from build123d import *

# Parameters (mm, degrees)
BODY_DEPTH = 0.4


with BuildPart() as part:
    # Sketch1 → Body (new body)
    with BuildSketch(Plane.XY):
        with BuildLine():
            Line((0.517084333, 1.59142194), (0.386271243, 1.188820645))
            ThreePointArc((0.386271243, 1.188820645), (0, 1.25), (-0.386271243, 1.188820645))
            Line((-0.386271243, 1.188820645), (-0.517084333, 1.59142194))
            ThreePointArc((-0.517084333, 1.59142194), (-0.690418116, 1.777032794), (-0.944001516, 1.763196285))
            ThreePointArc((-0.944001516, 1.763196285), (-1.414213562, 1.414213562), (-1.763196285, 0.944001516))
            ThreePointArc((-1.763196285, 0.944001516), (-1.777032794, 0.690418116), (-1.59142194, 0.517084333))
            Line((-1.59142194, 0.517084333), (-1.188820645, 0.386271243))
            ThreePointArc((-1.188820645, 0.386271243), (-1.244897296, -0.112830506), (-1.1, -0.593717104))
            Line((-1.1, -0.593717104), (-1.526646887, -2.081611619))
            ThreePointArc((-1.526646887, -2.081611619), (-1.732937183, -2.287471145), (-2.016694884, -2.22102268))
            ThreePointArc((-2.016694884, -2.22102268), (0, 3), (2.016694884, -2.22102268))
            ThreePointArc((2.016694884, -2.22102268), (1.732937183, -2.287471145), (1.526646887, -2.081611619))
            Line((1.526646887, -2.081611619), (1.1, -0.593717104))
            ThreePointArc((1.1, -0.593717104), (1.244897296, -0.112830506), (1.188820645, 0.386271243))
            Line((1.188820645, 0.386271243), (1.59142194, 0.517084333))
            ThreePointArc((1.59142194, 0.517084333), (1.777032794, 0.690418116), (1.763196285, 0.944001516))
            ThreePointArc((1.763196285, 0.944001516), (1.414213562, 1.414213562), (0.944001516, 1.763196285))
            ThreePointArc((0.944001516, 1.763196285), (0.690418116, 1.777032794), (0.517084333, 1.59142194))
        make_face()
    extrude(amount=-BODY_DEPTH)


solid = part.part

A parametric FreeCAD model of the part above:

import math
import FreeCAD as App
import Part
import Sketcher
from FreeCAD import Vector
Q = App.Units.Quantity

doc = App.newDocument("Part")
body = doc.addObject("PartDesign::Body", "Body")

# Sketch on XY plane
sketch1 = body.newObject("Sketcher::SketchObject", "Sketch")
sketch1.AttachmentSupport = (doc.getObject("XY_Plane"), [""])
sketch1.MapMode = "FlatFace"
sketch1.addGeometry(Part.LineSegment(Vector(0.386271, 1.188821, 0), Vector(0.517084, 1.591422, 0)), False)
sketch1.addGeometry(Part.ArcOfCircle(Part.Circle(Vector(0.802401, 1.498717, 0), Vector(0, 0, 1), 0.3), math.radians(61.835752), math.radians(162)), False)
sketch1.addGeometry(Part.ArcOfCircle(Part.Circle(Vector(0, 0, 0), Vector(0, 0, 1), 2), math.radians(28.164249), math.radians(61.835751)), False)
sketch1.addGeometry(Part.ArcOfCircle(Part.Circle(Vector(1.498717, 0.802401, 0), Vector(0, 0, 1), 0.3), math.radians(-72), math.radians(28.164248)), False)
sketch1.addGeometry(Part.LineSegment(Vector(1.591422, 0.517084, 0), Vector(1.188821, 0.386271, 0)), False)
sketch1.addGeometry(Part.ArcOfCircle(Part.Circle(Vector(0, 0, 0), Vector(0, 0, 1), 1.25), math.radians(-28.357637), math.radians(18)), False)
sketch1.addGeometry(Part.LineSegment(Vector(1.1, -0.593717, 0), Vector(1.526647, -2.081612, 0)), False)
sketch1.addGeometry(Part.ArcOfCircle(Part.Circle(Vector(1.815025, -1.99892, 0), Vector(0, 0, 1), 0.3), math.radians(-164), math.radians(-47.760462)), False)
sketch1.addGeometry(Part.ArcOfCircle(Part.Circle(Vector(0, 0, 0), Vector(0, 0, 1), 3), math.radians(-47.760463), math.radians(227.760463)), False)
sketch1.addGeometry(Part.ArcOfCircle(Part.Circle(Vector(-1.815025, -1.99892, 0), Vector(0, 0, 1), 0.3), math.radians(-132.239538), math.radians(-16)), False)
sketch1.addGeometry(Part.LineSegment(Vector(-1.526647, -2.081612, 0), Vector(-1.1, -0.593717, 0)), False)
sketch1.addGeometry(Part.ArcOfCircle(Part.Circle(Vector(0, 0, 0), Vector(0, 0, 1), 1.25), math.radians(162), math.radians(208.357637)), False)
sketch1.addGeometry(Part.LineSegment(Vector(-1.188821, 0.386271, 0), Vector(-1.591422, 0.517084, 0)), False)
sketch1.addGeometry(Part.ArcOfCircle(Part.Circle(Vector(-1.498717, 0.802401, 0), Vector(0, 0, 1), 0.3), math.radians(151.835752), math.radians(252)), False)
sketch1.addGeometry(Part.ArcOfCircle(Part.Circle(Vector(0, 0, 0), Vector(0, 0, 1), 2), math.radians(118.164249), math.radians(151.835751)), False)
sketch1.addGeometry(Part.ArcOfCircle(Part.Circle(Vector(-0.802401, 1.498717, 0), Vector(0, 0, 1), 0.3), math.radians(18), math.radians(118.164248)), False)
sketch1.addGeometry(Part.LineSegment(Vector(-0.517084, 1.591422, 0), Vector(-0.386271, 1.188821, 0)), False)
sketch1.addGeometry(Part.ArcOfCircle(Part.Circle(Vector(0, 0, 0), Vector(0, 0, 1), 1.25), math.radians(72), math.radians(108)), False)
sketch1.addConstraint(Sketcher.Constraint("Tangent", 0, 2, 1, 2))
sketch1.addConstraint(Sketcher.Constraint("Tangent", 1, 1, 2, 2))
sketch1.addConstraint(Sketcher.Constraint("Tangent", 2, 1, 3, 2))
sketch1.addConstraint(Sketcher.Constraint("Tangent", 3, 1, 4, 1))
sketch1.addConstraint(Sketcher.Constraint("Coincident", 4, 2, 5, 2))
sketch1.addConstraint(Sketcher.Constraint("Coincident", 5, 1, 6, 1))
sketch1.addConstraint(Sketcher.Constraint("Tangent", 6, 2, 7, 1))
sketch1.addConstraint(Sketcher.Constraint("Tangent", 7, 2, 8, 1))
sketch1.addConstraint(Sketcher.Constraint("Tangent", 8, 2, 9, 1))
sketch1.addConstraint(Sketcher.Constraint("Tangent", 9, 2, 10, 1))
sketch1.addConstraint(Sketcher.Constraint("Coincident", 10, 2, 11, 2))
sketch1.addConstraint(Sketcher.Constraint("Coincident", 11, 1, 12, 1))
sketch1.addConstraint(Sketcher.Constraint("Tangent", 12, 2, 13, 2))
sketch1.addConstraint(Sketcher.Constraint("Tangent", 13, 1, 14, 2))
sketch1.addConstraint(Sketcher.Constraint("Tangent", 14, 1, 15, 2))
sketch1.addConstraint(Sketcher.Constraint("Tangent", 15, 1, 16, 1))
sketch1.addConstraint(Sketcher.Constraint("Coincident", 16, 2, 17, 2))
sketch1.addConstraint(Sketcher.Constraint("Coincident", 17, 1, 0, 1))
sketch1.addConstraint(Sketcher.Constraint("Coincident", 2, 3, -1, 1))
sketch1.addConstraint(Sketcher.Constraint("Coincident", 5, 3, -1, 1))
sketch1.addConstraint(Sketcher.Constraint("Coincident", 8, 3, -1, 1))
sketch1.addConstraint(Sketcher.Constraint("Coincident", 11, 3, -1, 1))
sketch1.addConstraint(Sketcher.Constraint("Coincident", 14, 3, -1, 1))
sketch1.addConstraint(Sketcher.Constraint("Coincident", 17, 3, -1, 1))
sketch1.addConstraint(Sketcher.Constraint("Equal", 1, 3))
sketch1.addConstraint(Sketcher.Constraint("Equal", 3, 7))
sketch1.addConstraint(Sketcher.Constraint("Equal", 7, 9))
sketch1.addConstraint(Sketcher.Constraint("Equal", 5, 11))
sketch1.addConstraint(Sketcher.Constraint("Equal", 9, 13))
sketch1.addConstraint(Sketcher.Constraint("Equal", 2, 14))
sketch1.addConstraint(Sketcher.Constraint("Equal", 13, 15))
sketch1.addConstraint(Sketcher.Constraint("Equal", 11, 17))
sketch1.addConstraint(Sketcher.Constraint("Symmetric", 6, 2, 9, 2, -2))
sketch1.addConstraint(Sketcher.Constraint("Symmetric", 3, 1, 12, 2, -2))
sketch1.addConstraint(Sketcher.Constraint("Symmetric", 0, 2, 15, 1, -2))
sketch1.addConstraint(Sketcher.Constraint("Perpendicular", 0, 12))
sketch1.addConstraint(Sketcher.Constraint("Equal", 0, 4))
sketch1.addConstraint(Sketcher.Constraint("Radius", 2, Q("2 mm")))
sketch1.addConstraint(Sketcher.Constraint("Radius", 8, Q("3 mm")))
sketch1.addConstraint(Sketcher.Constraint("Radius", 1, Q("0.3 mm")))
sketch1.addConstraint(Sketcher.Constraint("Angle", 0, Q("72 deg")))
sketch1.addConstraint(Sketcher.Constraint("Angle", 6, Q("-74 deg")))
sketch1.addConstraint(Sketcher.Constraint("Radius", 5, Q("1.25 mm")))
sketch1.addConstraint(Sketcher.Constraint("DistanceX", -1, 1, 5, 1, Q("1.1 mm")))
sketch1.addConstraint(Sketcher.Constraint("DistanceX", -1, 1, 1, 1, Q("0.944002 mm")))
pad1 = body.newObject("PartDesign::Pad", "Pad")
pad1.Profile = sketch1
pad1.Length = 0.4
pad1.Reversed = True

doc.recompute()
